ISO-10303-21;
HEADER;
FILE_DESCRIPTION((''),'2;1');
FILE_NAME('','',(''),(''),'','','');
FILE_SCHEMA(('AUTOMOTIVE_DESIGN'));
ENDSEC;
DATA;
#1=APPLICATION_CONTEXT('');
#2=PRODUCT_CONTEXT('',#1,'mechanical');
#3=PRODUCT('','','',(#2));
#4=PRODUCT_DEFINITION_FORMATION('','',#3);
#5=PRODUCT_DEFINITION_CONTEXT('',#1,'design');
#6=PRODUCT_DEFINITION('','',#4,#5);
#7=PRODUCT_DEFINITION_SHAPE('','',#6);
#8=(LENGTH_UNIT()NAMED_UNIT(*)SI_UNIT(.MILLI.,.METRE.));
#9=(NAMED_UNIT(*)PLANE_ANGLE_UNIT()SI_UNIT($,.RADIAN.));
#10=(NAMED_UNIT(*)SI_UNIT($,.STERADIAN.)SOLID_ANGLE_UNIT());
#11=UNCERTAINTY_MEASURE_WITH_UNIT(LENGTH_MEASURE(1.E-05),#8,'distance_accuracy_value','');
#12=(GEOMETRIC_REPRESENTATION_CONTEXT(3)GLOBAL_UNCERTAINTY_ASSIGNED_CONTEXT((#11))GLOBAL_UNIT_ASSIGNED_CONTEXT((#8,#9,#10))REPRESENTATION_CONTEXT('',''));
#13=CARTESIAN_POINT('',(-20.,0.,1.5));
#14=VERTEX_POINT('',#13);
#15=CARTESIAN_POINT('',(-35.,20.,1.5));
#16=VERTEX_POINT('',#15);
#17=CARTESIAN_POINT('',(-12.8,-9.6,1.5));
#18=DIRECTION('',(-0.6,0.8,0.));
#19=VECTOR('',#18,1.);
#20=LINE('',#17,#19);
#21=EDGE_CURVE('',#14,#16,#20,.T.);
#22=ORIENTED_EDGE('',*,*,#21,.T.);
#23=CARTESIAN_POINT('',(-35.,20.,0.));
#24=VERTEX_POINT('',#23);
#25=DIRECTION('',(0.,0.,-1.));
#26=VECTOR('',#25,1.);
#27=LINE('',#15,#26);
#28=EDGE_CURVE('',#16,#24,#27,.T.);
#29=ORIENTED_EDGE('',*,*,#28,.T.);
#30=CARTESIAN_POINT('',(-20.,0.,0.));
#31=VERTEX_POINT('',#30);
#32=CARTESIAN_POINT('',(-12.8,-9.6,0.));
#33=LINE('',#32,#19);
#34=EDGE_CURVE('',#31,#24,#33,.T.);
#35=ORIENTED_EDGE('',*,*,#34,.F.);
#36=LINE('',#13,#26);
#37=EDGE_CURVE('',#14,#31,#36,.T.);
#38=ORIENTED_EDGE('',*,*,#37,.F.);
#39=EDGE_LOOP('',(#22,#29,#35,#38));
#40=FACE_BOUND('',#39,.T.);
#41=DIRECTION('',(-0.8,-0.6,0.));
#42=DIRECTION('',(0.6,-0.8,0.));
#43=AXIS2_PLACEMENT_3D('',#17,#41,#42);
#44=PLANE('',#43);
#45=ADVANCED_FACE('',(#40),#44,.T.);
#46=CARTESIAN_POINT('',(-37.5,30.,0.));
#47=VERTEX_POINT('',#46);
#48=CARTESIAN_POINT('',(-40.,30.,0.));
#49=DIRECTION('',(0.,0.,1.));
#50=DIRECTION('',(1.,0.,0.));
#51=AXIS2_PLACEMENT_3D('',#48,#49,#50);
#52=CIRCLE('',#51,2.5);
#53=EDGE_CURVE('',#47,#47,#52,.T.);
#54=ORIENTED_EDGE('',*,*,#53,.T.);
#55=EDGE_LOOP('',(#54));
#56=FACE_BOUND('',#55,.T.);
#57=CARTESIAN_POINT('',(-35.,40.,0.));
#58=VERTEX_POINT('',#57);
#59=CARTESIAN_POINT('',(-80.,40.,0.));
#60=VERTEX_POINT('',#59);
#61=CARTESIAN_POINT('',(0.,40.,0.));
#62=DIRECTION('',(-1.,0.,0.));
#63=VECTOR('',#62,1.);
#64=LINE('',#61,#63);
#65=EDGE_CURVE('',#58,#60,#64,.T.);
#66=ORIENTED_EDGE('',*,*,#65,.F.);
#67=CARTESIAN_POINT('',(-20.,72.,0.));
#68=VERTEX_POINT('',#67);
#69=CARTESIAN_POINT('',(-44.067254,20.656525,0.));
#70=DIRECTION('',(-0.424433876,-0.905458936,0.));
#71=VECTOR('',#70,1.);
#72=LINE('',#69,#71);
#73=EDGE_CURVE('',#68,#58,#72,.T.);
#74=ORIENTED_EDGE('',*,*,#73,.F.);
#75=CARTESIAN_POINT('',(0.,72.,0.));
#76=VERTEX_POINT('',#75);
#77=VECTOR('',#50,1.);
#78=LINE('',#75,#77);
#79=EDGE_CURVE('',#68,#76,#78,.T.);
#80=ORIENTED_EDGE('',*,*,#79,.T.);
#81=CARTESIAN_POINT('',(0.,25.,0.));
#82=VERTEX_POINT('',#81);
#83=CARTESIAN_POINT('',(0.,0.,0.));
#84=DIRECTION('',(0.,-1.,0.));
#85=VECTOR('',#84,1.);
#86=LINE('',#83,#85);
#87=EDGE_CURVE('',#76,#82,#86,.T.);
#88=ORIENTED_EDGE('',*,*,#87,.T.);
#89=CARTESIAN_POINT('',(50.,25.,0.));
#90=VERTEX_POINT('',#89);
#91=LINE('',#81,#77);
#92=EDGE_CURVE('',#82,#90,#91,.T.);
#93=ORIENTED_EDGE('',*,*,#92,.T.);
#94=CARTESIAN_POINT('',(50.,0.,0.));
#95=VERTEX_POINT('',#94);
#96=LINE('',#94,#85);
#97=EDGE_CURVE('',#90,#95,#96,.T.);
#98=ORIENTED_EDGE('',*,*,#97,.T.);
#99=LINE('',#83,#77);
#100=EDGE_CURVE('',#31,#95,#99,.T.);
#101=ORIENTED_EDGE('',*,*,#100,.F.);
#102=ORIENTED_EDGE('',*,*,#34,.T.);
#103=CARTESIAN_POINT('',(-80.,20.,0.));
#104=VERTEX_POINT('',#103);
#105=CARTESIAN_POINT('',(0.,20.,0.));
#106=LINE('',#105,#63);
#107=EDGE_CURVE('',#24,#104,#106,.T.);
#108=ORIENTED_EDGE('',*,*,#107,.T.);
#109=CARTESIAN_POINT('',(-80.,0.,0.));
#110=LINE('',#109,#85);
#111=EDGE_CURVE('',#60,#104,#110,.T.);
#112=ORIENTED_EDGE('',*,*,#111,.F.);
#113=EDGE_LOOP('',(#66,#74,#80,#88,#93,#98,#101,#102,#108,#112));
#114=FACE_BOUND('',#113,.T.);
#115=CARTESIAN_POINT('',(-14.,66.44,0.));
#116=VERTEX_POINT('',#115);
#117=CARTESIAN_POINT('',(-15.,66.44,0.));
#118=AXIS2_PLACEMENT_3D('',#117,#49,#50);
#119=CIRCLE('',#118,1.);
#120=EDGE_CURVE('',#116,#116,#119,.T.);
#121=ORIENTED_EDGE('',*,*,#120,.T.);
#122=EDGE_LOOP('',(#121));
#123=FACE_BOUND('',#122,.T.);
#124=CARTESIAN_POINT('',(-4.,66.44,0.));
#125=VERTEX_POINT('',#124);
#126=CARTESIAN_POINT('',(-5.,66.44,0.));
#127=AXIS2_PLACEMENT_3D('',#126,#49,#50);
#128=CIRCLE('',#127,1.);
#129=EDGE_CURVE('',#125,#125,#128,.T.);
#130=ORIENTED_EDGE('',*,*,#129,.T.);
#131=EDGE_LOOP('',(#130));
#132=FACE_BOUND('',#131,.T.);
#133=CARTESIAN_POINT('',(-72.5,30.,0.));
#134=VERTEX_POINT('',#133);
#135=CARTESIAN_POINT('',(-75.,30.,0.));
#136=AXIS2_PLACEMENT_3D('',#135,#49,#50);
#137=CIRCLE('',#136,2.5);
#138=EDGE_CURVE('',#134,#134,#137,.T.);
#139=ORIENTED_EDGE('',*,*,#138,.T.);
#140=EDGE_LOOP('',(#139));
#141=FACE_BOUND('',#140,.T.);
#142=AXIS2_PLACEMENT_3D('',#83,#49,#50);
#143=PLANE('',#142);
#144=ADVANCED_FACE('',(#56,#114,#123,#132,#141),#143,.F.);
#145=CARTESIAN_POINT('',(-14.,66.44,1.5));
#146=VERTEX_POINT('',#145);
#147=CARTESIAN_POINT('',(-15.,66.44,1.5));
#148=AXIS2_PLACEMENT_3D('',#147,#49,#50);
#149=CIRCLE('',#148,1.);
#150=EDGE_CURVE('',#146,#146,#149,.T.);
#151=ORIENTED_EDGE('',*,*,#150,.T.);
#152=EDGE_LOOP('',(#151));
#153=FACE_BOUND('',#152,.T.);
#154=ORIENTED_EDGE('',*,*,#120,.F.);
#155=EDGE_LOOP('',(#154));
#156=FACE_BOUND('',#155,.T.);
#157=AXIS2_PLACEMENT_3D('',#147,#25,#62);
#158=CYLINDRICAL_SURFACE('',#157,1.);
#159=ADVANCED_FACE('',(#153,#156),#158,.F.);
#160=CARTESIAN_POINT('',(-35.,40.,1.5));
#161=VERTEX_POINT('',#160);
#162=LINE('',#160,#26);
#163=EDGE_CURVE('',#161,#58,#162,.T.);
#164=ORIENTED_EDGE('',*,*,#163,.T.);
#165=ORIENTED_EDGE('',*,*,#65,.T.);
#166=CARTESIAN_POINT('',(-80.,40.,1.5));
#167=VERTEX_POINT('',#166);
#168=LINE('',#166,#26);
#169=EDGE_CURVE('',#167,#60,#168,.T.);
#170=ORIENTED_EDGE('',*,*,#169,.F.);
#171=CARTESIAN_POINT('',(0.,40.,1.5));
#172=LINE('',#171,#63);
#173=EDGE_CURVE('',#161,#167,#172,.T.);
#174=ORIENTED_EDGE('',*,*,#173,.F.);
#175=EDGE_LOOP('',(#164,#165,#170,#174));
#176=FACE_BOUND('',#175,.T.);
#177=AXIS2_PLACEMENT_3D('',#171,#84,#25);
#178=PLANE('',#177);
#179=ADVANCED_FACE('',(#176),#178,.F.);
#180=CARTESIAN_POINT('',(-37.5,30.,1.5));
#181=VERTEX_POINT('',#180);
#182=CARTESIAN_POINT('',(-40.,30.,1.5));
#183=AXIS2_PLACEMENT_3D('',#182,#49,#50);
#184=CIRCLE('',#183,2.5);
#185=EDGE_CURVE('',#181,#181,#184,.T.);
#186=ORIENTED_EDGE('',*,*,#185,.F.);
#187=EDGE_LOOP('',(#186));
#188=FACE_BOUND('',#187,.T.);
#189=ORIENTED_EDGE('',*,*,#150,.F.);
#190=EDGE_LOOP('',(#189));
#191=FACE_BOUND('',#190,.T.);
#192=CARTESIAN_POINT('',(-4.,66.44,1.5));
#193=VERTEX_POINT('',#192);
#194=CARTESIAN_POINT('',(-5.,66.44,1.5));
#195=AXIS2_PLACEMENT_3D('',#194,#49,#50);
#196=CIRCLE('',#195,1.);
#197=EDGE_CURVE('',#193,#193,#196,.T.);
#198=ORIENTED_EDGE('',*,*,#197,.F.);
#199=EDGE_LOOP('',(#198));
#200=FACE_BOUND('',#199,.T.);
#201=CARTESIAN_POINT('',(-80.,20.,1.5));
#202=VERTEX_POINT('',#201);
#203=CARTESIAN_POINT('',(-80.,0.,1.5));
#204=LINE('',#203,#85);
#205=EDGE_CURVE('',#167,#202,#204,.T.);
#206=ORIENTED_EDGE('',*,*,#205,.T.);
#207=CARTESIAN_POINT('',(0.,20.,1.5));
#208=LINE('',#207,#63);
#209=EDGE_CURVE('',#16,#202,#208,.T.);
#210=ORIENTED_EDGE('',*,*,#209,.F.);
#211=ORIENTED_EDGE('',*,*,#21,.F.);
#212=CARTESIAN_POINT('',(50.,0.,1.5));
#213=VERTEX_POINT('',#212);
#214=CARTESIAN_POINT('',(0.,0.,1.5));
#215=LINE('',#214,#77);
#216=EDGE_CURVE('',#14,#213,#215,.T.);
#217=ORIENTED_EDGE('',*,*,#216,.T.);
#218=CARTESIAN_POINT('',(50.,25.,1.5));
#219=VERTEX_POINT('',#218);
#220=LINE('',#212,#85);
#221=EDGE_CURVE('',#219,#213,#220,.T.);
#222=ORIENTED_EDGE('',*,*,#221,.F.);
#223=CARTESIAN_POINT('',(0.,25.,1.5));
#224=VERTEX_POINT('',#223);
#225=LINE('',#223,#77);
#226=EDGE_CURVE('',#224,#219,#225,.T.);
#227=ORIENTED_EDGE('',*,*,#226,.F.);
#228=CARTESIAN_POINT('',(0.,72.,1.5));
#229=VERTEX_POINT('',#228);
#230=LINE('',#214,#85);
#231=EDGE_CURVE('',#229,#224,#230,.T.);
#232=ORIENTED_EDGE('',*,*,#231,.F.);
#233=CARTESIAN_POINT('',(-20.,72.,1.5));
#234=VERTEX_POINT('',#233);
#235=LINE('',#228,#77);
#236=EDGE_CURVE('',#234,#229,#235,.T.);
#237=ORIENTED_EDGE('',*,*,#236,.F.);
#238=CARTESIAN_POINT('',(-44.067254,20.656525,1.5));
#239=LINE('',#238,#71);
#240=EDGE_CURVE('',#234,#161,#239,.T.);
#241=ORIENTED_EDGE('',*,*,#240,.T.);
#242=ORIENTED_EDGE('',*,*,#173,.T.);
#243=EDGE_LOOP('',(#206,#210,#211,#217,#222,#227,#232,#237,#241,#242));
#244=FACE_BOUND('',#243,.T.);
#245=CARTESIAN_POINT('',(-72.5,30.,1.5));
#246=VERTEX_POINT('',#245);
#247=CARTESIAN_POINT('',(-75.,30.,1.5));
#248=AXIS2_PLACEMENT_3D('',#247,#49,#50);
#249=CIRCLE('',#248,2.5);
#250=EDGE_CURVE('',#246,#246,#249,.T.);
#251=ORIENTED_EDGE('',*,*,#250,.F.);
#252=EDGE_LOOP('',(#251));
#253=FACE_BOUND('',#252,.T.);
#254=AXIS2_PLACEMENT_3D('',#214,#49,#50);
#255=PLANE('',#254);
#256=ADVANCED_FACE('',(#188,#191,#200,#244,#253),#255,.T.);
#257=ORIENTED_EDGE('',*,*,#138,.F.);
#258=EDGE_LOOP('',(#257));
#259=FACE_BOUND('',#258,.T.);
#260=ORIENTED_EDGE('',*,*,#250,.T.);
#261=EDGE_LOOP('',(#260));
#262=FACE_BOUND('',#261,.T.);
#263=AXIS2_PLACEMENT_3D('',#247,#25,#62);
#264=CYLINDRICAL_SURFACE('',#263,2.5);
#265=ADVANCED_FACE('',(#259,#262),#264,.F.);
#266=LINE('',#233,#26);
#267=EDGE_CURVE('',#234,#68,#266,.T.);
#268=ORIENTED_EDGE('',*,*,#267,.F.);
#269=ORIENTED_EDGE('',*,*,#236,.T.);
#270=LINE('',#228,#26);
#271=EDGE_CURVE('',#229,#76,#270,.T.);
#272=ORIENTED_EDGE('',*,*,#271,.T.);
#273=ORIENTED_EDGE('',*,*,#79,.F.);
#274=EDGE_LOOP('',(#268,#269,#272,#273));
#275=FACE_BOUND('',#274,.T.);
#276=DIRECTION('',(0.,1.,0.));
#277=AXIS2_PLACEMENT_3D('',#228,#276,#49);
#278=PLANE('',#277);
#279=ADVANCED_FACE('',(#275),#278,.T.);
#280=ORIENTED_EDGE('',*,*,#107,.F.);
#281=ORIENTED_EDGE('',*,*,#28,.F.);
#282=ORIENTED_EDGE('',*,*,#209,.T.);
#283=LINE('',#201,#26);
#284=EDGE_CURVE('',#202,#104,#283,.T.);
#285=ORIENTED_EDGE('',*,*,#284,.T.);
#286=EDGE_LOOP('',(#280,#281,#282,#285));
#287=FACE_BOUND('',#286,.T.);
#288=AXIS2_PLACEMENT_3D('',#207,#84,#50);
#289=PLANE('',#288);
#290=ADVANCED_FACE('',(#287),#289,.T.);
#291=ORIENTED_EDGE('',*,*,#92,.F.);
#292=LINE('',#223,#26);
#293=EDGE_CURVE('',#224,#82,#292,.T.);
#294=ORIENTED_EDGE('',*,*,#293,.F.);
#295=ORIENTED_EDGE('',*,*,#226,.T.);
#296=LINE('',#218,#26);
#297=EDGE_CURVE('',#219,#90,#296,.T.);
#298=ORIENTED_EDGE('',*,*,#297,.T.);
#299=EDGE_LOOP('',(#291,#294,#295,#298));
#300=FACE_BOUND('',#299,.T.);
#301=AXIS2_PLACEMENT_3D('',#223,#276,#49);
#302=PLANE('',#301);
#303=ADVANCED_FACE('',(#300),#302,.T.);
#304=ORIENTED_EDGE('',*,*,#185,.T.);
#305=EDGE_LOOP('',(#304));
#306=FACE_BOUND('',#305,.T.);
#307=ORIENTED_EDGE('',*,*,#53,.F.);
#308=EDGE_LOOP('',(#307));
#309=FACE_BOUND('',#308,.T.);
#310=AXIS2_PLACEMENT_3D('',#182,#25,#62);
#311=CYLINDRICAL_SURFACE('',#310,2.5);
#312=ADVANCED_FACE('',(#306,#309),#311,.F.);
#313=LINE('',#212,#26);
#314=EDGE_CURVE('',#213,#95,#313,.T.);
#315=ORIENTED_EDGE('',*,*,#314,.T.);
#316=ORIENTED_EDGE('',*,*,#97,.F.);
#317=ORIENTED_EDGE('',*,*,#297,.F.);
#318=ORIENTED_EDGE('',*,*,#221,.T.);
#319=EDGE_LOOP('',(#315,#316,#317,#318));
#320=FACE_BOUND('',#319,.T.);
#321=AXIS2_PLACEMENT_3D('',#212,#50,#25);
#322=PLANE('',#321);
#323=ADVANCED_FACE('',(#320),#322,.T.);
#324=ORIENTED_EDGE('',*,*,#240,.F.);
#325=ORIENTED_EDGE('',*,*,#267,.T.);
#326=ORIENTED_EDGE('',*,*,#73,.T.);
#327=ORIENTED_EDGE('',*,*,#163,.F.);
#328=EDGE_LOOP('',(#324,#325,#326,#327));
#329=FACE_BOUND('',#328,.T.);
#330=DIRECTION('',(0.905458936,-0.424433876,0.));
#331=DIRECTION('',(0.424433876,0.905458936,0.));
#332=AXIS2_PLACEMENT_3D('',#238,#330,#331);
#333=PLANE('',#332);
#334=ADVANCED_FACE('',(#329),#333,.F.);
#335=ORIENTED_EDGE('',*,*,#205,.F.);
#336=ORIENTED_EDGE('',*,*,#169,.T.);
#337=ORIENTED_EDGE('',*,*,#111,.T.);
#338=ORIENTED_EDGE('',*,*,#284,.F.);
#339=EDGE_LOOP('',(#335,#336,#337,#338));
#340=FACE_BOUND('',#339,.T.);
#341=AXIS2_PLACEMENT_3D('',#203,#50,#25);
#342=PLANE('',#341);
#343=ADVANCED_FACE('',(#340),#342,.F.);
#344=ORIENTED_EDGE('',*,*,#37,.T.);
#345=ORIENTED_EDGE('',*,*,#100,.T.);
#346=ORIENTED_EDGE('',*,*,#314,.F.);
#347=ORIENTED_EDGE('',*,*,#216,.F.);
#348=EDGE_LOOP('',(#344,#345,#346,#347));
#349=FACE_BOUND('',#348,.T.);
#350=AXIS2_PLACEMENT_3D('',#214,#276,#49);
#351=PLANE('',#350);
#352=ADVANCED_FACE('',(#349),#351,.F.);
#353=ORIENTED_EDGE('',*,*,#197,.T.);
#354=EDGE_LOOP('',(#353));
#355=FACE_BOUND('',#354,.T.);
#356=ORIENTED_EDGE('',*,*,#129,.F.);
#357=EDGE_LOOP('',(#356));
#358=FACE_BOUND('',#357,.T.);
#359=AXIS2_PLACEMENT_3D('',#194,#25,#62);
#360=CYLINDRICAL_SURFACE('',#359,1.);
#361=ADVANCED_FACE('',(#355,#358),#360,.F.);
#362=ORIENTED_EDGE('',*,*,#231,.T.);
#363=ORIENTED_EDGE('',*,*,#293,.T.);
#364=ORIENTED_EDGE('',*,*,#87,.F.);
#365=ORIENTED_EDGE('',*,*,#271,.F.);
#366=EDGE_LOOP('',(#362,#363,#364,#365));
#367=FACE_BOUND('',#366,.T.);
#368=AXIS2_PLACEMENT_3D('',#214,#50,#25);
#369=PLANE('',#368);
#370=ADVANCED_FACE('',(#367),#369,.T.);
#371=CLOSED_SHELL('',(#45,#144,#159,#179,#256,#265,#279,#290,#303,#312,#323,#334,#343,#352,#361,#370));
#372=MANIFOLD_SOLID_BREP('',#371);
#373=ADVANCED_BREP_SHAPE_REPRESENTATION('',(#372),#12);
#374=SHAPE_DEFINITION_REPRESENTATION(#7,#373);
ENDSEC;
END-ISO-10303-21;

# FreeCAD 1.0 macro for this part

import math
import FreeCAD as App
import Part
import Sketcher

doc = App.newDocument("Part")
body = doc.addObject("PartDesign::Body", "Body")

# Sketch on XY plane
sketch1 = body.newObject("Sketcher::SketchObject", "Sketch")
sketch1.AttachmentSupport = (doc.getObject("XY_Plane"), [""])
sketch1.MapMode = "FlatFace"
sketch1.addGeometry([
    Part.LineSegment(App.Vector(0, 72, 0), App.Vector(-20, 72, 0)),  # 0
    Part.LineSegment(App.Vector(-20, 72, 0), App.Vector(-35, 40, 0)),  # 1
    Part.LineSegment(App.Vector(-35, 40, 0), App.Vector(-80, 40, 0)),  # 2
    Part.LineSegment(App.Vector(-80, 40, 0), App.Vector(-80, 20, 0)),  # 3
    Part.LineSegment(App.Vector(-80, 20, 0), App.Vector(-35, 20, 0)),  # 4
    Part.LineSegment(App.Vector(-35, 20, 0), App.Vector(-20, 0, 0)),  # 5
    Part.LineSegment(App.Vector(-20, 0, 0), App.Vector(50, 0, 0)),  # 6
    Part.LineSegment(App.Vector(50, 0, 0), App.Vector(50, 25, 0)),  # 7
    Part.LineSegment(App.Vector(50, 25, 0), App.Vector(0, 25, 0)),  # 8
    Part.LineSegment(App.Vector(0, 25, 0), App.Vector(0, 72, 0)),  # 9
    Part.ArcOfCircle(Part.Circle(App.Vector(-40, 30, 0), App.Vector(0, 0, 1), 2.5), math.radians(-90), math.radians(0)),  # 10
    Part.ArcOfCircle(Part.Circle(App.Vector(-40, 30, 0), App.Vector(0, 0, 1), 2.5), math.radians(180), math.radians(270)),  # 11
    Part.ArcOfCircle(Part.Circle(App.Vector(-40, 30, 0), App.Vector(0, 0, 1), 2.5), math.radians(90), math.radians(180)),  # 12
    Part.ArcOfCircle(Part.Circle(App.Vector(-40, 30, 0), App.Vector(0, 0, 1), 2.5), math.radians(0), math.radians(90)),  # 13
    Part.Circle(App.Vector(-15, 66.44, 0), App.Vector(0, 0, 1), 1),  # 14
    Part.Circle(App.Vector(-5, 66.44, 0), App.Vector(0, 0, 1), 1),  # 15
    Part.ArcOfCircle(Part.Circle(App.Vector(-75, 30, 0), App.Vector(0, 0, 1), 2.5), math.radians(0), math.radians(90)),  # 16
    Part.ArcOfCircle(Part.Circle(App.Vector(-75, 30, 0), App.Vector(0, 0, 1), 2.5), math.radians(-90), math.radians(0)),  # 17
    Part.ArcOfCircle(Part.Circle(App.Vector(-75, 30, 0), App.Vector(0, 0, 1), 2.5), math.radians(180), math.radians(270)),  # 18
    Part.ArcOfCircle(Part.Circle(App.Vector(-75, 30, 0), App.Vector(0, 0, 1), 2.5), math.radians(90), math.radians(180)),  # 19
], False)
sketch1.addConstraint([
    Sketcher.Constraint("Coincident", 0, 2, 1, 1),
    Sketcher.Constraint("Coincident", 1, 2, 2, 1),
    Sketcher.Constraint("Coincident", 2, 2, 3, 1),
    Sketcher.Constraint("Coincident", 3, 2, 4, 1),
    Sketcher.Constraint("Coincident", 4, 2, 5, 1),
    Sketcher.Constraint("Coincident", 5, 2, 6, 1),
    Sketcher.Constraint("Coincident", 6, 2, 7, 1),
    Sketcher.Constraint("Coincident", 7, 2, 8, 1),
    Sketcher.Constraint("Coincident", 8, 2, 9, 1),
    Sketcher.Constraint("Coincident", 9, 2, 0, 1),
    Sketcher.Constraint("Tangent", 10, 1, 11, 2),
    Sketcher.Constraint("Tangent", 11, 1, 12, 2),
    Sketcher.Constraint("Tangent", 12, 1, 13, 2),
    Sketcher.Constraint("Tangent", 13, 1, 10, 2),
    Sketcher.Constraint("Tangent", 16, 1, 17, 2),
    Sketcher.Constraint("Tangent", 17, 1, 18, 2),
    Sketcher.Constraint("Tangent", 18, 1, 19, 2),
    Sketcher.Constraint("Tangent", 19, 1, 16, 2),
    Sketcher.Constraint("Horizontal", 0),
    Sketcher.Constraint("Horizontal", 2),
    Sketcher.Constraint("Vertical", 3),
    Sketcher.Constraint("Horizontal", 4),
    Sketcher.Constraint("Horizontal", 6),
    Sketcher.Constraint("Vertical", 7),
    Sketcher.Constraint("Horizontal", 8),
    Sketcher.Constraint("Vertical", 9),
    Sketcher.Constraint("Equal", 10, 11),
    Sketcher.Constraint("Equal", 14, 15),
    Sketcher.Constraint("Equal", 13, 16),
    Sketcher.Constraint("Equal", 16, 17),
    Sketcher.Constraint("PointOnObject", 5, 2, -1),
    Sketcher.Constraint("PointOnObject", 8, 2, -2),
    Sketcher.Constraint("Horizontal", 14, 3, 15, 3),
    Sketcher.Constraint("Horizontal", 13, 3, 16, 3),
    Sketcher.Constraint("Horizontal", 19, 3, 11, 1),
    Sketcher.Constraint("Horizontal", 11, 1, 13, 1),
    Sketcher.Constraint("Horizontal", 13, 1, 16, 1),
    Sketcher.Constraint("Horizontal", 16, 1, 18, 1),
    Sketcher.Constraint("Vertical", 1, 2, 4, 2),
    Sketcher.Constraint("Vertical", 0, 2, 5, 2),
    Sketcher.Constraint("Vertical", 13, 3, 10, 1),
    Sketcher.Constraint("Vertical", 10, 1, 12, 1),
    Sketcher.Constraint("Vertical", 19, 3, 17, 1),
    Sketcher.Constraint("Vertical", 17, 1, 19, 1),
    Sketcher.Constraint("Equal", 0, 3),
    Sketcher.Constraint("Diameter", 14, 2.0),
    Sketcher.Constraint("Radius", 10, 2.5),
    Sketcher.Constraint("DistanceX", 0, 2, 0, 1, 20.0),
    Sketcher.Constraint("DistanceX", 2, 2, 2, 1, 45.0),
    Sketcher.Constraint("DistanceX", 6, 1, 6, 2, 70.0),
    Sketcher.Constraint("DistanceY", 7, 1, 7, 2, 25.0),
    Sketcher.Constraint("DistanceY", 9, 1, 9, 2, 47.0),
    Sketcher.Constraint("Distance", 5, 25.0),
    Sketcher.Constraint("DistanceX", 10, 3, -1, 1, 40.0),
    Sketcher.Constraint("DistanceY", -1, 1, 10, 3, 30.0),
    Sketcher.Constraint("DistanceX", 14, 3, -1, 1, 15.0),
    Sketcher.Constraint("DistanceX", 15, 3, -1, 1, 5.0),
    Sketcher.Constraint("DistanceX", 16, 3, -1, 1, 75.0),
    Sketcher.Constraint("DistanceX", 1, 2, -1, 1, 35.0),
    Sketcher.Constraint("DistanceY", -1, 1, 14, 3, 66.44),
])
pad1 = body.newObject("PartDesign::Pad", "Pad")
pad1.Profile = sketch1
pad1.Length = 1.5

doc.recompute()
